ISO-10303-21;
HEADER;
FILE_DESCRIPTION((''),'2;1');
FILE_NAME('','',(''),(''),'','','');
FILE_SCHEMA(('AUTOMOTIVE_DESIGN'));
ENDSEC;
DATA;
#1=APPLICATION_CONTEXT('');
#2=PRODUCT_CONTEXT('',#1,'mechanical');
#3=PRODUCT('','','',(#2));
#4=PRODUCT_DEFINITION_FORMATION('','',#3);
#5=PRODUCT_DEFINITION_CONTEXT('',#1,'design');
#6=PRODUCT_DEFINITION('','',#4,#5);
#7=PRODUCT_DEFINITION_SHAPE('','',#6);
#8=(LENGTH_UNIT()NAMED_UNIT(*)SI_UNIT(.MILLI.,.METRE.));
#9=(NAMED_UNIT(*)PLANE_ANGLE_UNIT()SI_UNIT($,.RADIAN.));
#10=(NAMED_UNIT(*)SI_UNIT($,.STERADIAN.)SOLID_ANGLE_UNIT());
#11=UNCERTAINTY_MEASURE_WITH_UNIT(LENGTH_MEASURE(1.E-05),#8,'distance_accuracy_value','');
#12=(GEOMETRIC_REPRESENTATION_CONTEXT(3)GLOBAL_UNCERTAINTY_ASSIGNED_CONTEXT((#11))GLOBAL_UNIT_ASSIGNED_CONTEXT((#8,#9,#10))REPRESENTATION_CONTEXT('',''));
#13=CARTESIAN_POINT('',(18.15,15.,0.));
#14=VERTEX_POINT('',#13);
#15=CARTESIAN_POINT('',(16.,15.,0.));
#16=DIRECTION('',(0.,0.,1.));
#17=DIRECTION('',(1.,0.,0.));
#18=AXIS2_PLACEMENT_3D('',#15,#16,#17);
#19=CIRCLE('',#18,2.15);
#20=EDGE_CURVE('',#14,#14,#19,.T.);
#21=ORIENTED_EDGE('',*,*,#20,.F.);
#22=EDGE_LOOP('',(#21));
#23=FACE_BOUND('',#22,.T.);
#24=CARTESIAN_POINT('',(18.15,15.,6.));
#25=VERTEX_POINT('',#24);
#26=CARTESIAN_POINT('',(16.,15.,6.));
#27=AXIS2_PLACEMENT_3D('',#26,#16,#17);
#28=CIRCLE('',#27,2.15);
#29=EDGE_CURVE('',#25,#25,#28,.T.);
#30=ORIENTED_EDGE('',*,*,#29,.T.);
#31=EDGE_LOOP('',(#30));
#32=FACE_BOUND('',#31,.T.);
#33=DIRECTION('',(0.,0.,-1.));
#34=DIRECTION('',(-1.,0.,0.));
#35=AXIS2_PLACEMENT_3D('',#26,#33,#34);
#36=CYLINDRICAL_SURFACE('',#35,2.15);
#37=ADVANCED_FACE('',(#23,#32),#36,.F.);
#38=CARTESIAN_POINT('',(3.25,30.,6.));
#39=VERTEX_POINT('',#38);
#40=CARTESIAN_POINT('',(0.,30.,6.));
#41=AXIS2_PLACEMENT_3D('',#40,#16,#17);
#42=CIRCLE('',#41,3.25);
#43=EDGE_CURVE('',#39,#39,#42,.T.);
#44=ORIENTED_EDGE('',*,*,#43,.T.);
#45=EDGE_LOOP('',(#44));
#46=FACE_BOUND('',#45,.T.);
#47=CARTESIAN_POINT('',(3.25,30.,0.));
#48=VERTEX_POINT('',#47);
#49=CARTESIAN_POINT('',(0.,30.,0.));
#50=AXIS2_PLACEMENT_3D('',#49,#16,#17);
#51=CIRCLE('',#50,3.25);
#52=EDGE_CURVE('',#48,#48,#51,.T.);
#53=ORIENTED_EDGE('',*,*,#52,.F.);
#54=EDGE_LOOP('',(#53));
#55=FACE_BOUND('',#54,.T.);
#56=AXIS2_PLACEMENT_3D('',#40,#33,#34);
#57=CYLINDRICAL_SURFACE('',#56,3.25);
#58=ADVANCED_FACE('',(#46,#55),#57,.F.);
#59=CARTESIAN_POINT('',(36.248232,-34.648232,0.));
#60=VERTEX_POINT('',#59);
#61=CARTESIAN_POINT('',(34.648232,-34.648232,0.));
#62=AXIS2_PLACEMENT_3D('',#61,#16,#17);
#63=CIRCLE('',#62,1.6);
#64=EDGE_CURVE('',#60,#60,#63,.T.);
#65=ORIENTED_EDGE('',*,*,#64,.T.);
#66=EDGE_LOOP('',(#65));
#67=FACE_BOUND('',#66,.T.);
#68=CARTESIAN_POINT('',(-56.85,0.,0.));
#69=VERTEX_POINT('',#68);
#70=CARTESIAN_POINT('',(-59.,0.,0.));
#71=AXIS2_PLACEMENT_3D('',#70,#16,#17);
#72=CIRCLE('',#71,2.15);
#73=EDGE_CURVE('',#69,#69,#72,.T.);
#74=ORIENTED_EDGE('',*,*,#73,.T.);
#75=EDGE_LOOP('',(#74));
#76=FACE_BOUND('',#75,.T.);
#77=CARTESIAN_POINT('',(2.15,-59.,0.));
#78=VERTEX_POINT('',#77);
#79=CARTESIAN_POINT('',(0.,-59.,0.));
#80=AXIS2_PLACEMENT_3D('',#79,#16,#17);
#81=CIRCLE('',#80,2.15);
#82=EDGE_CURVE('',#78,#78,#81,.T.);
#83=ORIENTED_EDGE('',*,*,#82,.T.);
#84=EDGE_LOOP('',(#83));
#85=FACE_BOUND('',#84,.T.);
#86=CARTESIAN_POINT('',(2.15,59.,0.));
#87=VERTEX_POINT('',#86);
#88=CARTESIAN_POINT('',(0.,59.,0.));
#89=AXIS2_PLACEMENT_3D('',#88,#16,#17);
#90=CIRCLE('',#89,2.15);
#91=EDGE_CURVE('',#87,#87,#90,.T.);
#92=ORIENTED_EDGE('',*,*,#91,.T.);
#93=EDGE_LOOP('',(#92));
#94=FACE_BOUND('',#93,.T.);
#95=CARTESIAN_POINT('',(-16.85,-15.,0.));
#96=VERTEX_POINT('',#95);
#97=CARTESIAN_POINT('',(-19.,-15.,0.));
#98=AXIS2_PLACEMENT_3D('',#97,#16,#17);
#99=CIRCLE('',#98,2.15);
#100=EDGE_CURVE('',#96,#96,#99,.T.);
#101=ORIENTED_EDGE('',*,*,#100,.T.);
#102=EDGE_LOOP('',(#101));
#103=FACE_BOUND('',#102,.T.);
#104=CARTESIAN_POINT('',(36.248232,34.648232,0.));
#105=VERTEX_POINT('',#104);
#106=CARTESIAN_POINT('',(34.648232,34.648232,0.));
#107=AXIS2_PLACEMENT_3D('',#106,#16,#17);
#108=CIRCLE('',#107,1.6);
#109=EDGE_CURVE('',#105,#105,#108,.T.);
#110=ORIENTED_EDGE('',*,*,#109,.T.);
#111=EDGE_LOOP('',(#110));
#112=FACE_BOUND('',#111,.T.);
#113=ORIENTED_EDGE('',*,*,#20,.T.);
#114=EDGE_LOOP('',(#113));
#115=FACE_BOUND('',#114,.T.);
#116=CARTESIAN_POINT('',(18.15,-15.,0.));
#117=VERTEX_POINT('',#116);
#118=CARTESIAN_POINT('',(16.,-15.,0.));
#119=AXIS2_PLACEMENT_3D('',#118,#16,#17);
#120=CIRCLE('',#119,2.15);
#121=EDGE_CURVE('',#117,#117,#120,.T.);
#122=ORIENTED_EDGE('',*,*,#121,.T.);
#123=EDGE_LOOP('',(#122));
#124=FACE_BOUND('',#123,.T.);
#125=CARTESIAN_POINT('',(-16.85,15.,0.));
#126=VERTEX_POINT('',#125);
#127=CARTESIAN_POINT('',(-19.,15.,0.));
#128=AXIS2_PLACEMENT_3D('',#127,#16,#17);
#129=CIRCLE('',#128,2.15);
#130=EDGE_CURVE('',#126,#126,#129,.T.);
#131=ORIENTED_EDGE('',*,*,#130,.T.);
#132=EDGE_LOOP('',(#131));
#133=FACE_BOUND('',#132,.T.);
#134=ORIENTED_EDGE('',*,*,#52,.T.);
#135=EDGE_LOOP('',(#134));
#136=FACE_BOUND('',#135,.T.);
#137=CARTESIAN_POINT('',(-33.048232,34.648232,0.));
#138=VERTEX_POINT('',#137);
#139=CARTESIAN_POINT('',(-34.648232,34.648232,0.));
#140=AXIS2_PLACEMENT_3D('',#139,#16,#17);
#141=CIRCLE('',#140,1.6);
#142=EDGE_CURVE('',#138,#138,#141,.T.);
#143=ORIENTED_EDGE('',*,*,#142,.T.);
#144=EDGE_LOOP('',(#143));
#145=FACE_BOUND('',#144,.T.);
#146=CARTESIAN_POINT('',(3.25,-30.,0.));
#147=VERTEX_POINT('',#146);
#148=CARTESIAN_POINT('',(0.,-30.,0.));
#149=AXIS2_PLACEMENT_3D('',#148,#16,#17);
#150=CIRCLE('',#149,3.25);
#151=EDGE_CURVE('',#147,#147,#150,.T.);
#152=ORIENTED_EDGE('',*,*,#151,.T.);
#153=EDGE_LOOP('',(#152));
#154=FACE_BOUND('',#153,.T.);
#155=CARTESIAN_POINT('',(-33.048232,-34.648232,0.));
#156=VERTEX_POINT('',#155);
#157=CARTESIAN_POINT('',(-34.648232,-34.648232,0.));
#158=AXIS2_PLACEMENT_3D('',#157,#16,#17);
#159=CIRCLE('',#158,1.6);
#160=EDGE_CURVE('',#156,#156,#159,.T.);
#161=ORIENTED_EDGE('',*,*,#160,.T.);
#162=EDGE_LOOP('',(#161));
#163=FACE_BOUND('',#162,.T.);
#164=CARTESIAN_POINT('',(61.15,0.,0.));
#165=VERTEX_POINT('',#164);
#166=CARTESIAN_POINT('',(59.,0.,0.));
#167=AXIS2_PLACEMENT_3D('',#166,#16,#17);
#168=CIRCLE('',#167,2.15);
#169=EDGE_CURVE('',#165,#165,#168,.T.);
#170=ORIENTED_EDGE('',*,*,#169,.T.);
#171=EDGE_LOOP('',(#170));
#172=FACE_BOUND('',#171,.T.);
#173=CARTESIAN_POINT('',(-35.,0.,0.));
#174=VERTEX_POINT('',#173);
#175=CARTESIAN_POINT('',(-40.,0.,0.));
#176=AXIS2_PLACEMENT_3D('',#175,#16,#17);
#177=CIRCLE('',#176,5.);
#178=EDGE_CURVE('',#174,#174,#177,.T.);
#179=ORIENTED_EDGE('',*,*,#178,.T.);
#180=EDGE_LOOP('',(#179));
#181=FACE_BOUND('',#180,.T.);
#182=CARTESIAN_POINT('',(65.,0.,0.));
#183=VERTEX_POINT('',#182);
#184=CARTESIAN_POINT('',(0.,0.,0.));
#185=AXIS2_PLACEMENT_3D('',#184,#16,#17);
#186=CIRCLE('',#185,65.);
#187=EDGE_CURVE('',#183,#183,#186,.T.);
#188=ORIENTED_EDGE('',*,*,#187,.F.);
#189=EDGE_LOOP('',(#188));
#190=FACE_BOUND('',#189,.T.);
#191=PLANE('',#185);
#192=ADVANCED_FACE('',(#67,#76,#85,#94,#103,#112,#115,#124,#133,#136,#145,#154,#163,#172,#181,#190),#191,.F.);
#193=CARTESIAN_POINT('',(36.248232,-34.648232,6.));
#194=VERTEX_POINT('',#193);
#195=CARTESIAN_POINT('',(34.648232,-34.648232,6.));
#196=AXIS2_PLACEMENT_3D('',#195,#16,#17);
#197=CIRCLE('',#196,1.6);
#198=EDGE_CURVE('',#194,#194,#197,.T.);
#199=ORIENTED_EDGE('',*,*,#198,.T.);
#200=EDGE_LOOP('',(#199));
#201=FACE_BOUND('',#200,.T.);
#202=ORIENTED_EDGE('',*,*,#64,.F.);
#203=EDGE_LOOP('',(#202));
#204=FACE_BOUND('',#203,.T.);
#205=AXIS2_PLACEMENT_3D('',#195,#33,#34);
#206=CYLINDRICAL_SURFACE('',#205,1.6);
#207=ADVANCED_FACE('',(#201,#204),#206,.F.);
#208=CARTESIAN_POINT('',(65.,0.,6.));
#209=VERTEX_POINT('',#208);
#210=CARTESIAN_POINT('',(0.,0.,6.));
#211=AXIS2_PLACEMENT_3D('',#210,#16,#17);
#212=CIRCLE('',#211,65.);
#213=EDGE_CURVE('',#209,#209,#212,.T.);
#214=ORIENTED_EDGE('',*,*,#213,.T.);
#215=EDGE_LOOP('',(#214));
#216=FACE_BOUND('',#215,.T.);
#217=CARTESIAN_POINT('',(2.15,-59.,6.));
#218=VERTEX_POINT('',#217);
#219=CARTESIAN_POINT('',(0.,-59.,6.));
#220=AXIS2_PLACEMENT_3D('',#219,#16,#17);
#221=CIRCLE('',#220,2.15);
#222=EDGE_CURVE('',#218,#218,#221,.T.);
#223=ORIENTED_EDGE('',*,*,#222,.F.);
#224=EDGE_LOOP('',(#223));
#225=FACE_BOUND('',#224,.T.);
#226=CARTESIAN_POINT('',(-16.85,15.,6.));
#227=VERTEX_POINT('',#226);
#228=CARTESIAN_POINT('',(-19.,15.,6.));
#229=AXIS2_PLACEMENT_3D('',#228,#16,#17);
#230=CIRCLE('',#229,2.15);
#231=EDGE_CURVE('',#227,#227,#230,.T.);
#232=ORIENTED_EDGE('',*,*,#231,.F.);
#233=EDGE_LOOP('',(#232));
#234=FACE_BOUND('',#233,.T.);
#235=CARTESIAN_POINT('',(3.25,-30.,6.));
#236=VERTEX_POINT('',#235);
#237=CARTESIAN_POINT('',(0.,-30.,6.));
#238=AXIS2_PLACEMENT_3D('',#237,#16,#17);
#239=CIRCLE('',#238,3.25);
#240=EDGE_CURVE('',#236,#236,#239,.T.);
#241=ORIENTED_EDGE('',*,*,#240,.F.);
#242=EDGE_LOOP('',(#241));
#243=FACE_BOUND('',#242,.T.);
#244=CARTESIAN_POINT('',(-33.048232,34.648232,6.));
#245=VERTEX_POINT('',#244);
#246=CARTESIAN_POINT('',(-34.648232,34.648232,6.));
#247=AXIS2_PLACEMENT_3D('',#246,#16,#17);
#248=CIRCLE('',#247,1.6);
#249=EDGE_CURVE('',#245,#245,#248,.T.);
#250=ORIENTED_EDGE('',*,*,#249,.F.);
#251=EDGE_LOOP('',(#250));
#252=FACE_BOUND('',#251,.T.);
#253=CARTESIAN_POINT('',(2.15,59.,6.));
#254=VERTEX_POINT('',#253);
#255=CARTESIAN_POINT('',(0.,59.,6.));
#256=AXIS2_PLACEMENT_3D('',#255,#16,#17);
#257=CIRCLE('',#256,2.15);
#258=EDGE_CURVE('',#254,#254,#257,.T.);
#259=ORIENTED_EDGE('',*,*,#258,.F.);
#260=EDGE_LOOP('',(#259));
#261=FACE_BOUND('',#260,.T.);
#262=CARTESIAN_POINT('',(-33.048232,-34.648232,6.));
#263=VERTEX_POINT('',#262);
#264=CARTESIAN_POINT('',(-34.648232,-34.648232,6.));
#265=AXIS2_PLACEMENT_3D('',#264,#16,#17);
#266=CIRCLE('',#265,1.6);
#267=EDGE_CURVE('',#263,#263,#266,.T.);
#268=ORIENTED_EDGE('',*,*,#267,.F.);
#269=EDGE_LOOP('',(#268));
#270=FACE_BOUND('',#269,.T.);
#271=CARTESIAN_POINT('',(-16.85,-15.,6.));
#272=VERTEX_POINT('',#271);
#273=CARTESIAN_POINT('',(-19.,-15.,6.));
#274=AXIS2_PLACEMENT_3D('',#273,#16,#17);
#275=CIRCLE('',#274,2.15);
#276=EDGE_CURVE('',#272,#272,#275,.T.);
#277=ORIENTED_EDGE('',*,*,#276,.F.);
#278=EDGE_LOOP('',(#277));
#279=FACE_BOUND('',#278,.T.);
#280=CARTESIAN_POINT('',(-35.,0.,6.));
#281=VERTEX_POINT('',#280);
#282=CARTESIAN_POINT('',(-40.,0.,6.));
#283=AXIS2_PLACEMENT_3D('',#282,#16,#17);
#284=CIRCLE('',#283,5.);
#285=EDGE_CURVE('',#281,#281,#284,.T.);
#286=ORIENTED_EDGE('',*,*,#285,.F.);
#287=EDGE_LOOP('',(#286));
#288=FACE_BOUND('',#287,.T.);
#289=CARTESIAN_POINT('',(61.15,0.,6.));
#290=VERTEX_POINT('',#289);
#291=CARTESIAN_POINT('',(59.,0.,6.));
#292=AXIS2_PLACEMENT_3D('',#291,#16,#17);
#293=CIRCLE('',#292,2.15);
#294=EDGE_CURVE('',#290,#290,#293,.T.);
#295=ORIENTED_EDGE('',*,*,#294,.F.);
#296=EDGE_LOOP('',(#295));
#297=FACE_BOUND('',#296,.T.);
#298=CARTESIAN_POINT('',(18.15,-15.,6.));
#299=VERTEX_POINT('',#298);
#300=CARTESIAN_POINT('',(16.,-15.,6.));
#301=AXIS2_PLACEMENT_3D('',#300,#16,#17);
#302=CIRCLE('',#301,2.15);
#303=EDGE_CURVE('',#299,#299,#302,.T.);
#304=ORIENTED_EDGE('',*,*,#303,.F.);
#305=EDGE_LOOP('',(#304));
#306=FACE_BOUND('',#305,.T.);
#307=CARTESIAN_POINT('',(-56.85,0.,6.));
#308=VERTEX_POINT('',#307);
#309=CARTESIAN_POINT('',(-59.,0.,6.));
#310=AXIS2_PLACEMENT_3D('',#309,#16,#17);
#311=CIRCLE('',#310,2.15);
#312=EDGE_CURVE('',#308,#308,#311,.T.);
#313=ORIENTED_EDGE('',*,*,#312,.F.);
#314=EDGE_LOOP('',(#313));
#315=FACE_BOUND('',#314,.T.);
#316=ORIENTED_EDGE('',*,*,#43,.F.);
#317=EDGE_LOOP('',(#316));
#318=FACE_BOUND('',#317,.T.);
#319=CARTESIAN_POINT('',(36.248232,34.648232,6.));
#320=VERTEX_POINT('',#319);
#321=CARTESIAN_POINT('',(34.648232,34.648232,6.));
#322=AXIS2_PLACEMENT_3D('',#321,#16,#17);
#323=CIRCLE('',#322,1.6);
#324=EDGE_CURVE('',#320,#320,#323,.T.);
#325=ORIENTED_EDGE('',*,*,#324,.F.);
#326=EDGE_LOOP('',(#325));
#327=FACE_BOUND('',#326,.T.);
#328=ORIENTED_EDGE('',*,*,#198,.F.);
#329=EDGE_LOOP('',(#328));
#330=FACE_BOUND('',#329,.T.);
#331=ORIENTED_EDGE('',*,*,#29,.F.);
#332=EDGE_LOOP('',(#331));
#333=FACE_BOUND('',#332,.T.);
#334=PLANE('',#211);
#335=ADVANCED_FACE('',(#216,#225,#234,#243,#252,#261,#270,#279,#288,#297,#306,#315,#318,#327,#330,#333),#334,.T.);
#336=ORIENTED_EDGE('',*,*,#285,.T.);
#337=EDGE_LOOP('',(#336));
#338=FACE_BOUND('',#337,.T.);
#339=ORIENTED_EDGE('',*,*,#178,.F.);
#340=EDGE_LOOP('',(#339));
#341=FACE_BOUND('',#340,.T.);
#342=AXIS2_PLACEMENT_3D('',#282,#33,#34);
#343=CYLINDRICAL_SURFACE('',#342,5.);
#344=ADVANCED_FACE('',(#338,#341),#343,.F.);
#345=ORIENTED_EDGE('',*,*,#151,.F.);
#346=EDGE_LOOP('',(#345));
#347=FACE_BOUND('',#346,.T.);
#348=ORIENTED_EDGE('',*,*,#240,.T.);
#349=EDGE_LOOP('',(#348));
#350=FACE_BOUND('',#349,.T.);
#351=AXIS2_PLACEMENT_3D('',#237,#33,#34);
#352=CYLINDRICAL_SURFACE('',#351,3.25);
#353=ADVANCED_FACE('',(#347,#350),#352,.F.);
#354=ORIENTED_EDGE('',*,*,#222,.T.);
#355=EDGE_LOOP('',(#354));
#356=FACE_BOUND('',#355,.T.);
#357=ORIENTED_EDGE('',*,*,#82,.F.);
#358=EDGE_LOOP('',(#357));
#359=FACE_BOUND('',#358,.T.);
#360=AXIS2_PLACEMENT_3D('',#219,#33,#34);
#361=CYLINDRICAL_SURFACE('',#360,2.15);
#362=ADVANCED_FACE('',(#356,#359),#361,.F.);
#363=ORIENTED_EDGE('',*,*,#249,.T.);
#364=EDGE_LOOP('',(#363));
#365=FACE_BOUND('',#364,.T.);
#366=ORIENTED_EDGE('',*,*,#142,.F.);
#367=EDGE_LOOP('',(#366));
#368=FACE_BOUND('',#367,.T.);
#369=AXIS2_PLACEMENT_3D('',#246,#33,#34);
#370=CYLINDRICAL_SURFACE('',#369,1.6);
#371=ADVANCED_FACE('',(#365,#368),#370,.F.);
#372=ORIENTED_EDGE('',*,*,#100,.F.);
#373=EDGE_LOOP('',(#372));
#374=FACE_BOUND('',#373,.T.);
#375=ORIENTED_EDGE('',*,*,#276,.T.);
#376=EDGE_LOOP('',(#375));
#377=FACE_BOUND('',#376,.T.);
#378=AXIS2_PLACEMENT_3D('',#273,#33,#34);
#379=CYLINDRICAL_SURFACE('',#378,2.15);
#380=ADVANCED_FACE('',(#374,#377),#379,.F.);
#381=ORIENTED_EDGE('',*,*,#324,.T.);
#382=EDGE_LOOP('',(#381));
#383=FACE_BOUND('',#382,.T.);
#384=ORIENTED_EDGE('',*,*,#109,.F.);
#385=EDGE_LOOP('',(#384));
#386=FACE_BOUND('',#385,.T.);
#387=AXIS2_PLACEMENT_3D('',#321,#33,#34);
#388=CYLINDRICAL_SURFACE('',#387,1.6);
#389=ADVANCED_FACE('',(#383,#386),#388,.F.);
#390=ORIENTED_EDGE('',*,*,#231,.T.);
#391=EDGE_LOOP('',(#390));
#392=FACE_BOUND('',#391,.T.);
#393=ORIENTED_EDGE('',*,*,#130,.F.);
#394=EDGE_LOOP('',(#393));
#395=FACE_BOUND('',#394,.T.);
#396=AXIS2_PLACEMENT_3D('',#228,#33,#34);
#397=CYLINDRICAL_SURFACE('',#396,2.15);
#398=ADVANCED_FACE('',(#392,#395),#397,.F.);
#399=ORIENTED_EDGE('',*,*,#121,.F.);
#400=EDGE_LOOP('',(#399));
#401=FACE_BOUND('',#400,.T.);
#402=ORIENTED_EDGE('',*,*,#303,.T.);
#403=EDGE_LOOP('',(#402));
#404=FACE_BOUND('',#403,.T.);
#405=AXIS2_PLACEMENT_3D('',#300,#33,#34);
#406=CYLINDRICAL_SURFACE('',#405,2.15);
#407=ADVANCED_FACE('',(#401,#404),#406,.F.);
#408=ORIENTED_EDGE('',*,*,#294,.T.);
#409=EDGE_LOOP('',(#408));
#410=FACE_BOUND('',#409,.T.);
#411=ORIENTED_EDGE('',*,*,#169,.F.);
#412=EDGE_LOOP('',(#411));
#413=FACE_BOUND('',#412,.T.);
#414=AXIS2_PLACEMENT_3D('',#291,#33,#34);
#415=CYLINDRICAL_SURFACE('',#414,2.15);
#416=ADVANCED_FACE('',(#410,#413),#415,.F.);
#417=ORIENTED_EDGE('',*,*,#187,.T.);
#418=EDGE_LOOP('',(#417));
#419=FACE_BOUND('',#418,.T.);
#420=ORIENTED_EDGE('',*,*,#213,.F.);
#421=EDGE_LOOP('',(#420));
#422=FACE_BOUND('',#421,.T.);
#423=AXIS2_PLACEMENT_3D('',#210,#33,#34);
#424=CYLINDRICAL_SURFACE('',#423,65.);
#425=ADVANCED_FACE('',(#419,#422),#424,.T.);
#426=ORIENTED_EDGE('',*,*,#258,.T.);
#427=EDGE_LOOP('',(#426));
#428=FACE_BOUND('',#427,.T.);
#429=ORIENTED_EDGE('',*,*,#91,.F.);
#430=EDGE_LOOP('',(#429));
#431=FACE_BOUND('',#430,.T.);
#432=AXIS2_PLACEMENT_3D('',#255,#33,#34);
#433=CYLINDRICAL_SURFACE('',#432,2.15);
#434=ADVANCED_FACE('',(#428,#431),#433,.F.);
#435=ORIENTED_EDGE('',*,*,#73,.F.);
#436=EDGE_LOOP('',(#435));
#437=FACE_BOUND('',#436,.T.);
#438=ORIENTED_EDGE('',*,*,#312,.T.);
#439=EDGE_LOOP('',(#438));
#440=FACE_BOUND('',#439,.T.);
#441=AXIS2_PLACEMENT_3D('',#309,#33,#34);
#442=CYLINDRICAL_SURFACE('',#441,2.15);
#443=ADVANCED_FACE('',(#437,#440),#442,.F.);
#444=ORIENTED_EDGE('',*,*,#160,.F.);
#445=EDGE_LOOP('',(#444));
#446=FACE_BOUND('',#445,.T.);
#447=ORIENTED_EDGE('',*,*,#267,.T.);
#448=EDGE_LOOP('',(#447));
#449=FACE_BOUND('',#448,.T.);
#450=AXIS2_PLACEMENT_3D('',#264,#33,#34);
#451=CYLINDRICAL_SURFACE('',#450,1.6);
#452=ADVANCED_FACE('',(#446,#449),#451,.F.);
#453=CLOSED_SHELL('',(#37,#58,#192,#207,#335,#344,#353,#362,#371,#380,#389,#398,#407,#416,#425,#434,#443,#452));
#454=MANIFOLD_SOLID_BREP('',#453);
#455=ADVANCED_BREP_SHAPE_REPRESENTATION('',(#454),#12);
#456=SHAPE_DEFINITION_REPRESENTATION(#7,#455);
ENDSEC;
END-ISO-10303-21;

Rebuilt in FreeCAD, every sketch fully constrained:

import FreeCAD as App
import Part
import Sketcher
from FreeCAD import Vector

doc = App.newDocument("Part")
body = doc.addObject("PartDesign::Body", "Body")

# Sketch on XY plane
sketch1 = body.newObject("Sketcher::SketchObject", "Sketch")
sketch1.AttachmentSupport = (doc.getObject("XY_Plane"), [""])
sketch1.MapMode = "FlatFace"
sketch1.addGeometry(Part.Circle(Vector(0, 0, 0), Vector(0, 0, 1), 65), False)
sketch1.addGeometry(Part.Circle(Vector(-34.6, -34.6, 0), Vector(0, 0, 1), 1.6), False)
sketch1.addGeometry(Part.Circle(Vector(0, -59, 0), Vector(0, 0, 1), 2.1), False)
sketch1.addGeometry(Part.Circle(Vector(-59, 0, 0), Vector(0, 0, 1), 2.1), False)
sketch1.addGeometry(Part.Circle(Vector(-40, 0, 0), Vector(0, 0, 1), 5), False)
sketch1.addGeometry(Part.Circle(Vector(0, -30, 0), Vector(0, 0, 1), 3.2), False)
sketch1.addGeometry(Part.Circle(Vector(-19, -15, 0), Vector(0, 0, 1), 2.1), False)
sketch1.addGeometry(Part.Circle(Vector(34.6, -34.6, 0), Vector(0, 0, 1), 1.6), False)
sketch1.addGeometry(Part.Circle(Vector(16, -15, 0), Vector(0, 0, 1), 2.1), False)
sketch1.addGeometry(Part.Circle(Vector(59, 0, 0), Vector(0, 0, 1), 2.1), False)
sketch1.addGeometry(Part.Circle(Vector(-19, 15, 0), Vector(0, 0, 1), 2.1), False)
sketch1.addGeometry(Part.Circle(Vector(0, 30, 0), Vector(0, 0, 1), 3.2), False)
sketch1.addGeometry(Part.Circle(Vector(-34.6, 34.6, 0), Vector(0, 0, 1), 1.6), False)
sketch1.addGeometry(Part.Circle(Vector(0, 59, 0), Vector(0, 0, 1), 2.1), False)
sketch1.addGeometry(Part.Circle(Vector(16, 15, 0), Vector(0, 0, 1), 2.1), False)
sketch1.addGeometry(Part.Circle(Vector(34.6, 34.6, 0), Vector(0, 0, 1), 1.6), False)
sketch1.addConstraint(Sketcher.Constraint("Coincident", 0, 3, -1, 1))
sketch1.addConstraint(Sketcher.Constraint("Equal", 2, 3))
sketch1.addConstraint(Sketcher.Constraint("Equal", 3, 6))
sketch1.addConstraint(Sketcher.Constraint("Equal", 1, 7))
sketch1.addConstraint(Sketcher.Constraint("Equal", 6, 8))
sketch1.addConstraint(Sketcher.Constraint("Equal", 8, 9))
sketch1.addConstraint(Sketcher.Constraint("Equal", 9, 10))
sketch1.addConstraint(Sketcher.Constraint("Equal", 5, 11))
sketch1.addConstraint(Sketcher.Constraint("Equal", 7, 12))
sketch1.addConstraint(Sketcher.Constraint("Equal", 10, 13))
sketch1.addConstraint(Sketcher.Constraint("Equal", 13, 14))
sketch1.addConstraint(Sketcher.Constraint("Equal", 12, 15))
sketch1.addConstraint(Sketcher.Constraint("Symmetric", 3, 3, 9, 3, -1, 1))
sketch1.addConstraint(Sketcher.Constraint("Symmetric", 5, 3, 11, 3, -1, 1))
sketch1.addConstraint(Sketcher.Constraint("Symmetric", 7, 3, 12, 3, -1, 1))
sketch1.addConstraint(Sketcher.Constraint("Symmetric", 2, 3, 13, 3, -1, 1))
sketch1.addConstraint(Sketcher.Constraint("Symmetric", 1, 3, 15, 3, -1, 1))
sketch1.addConstraint(Sketcher.Constraint("Symmetric", 1, 3, 7, 3, -2))
sketch1.addConstraint(Sketcher.Constraint("Symmetric", 6, 3, 10, 3, -1))
sketch1.addConstraint(Sketcher.Constraint("Symmetric", 8, 3, 14, 3, -1))
sketch1.addConstraint(Sketcher.Constraint("PointOnObject", 2, 3, -2))
sketch1.addConstraint(Sketcher.Constraint("PointOnObject", 3, 3, -1))
sketch1.addConstraint(Sketcher.Constraint("PointOnObject", 4, 3, -1))
sketch1.addConstraint(Sketcher.Constraint("PointOnObject", 5, 3, -2))
sketch1.addConstraint(Sketcher.Constraint("Horizontal", 6, 3, 8, 3))
sketch1.addConstraint(Sketcher.Constraint("Diameter", 0, 130.0))
sketch1.addConstraint(Sketcher.Constraint("Diameter", 4, 10.0))
sketch1.addConstraint(Sketcher.Constraint("Diameter", 1, 3.2))
sketch1.addConstraint(Sketcher.Constraint("Diameter", 2, 4.3))
sketch1.addConstraint(Sketcher.Constraint("Diameter", 5, 6.5))
sketch1.addConstraint(Sketcher.Constraint("DistanceY", 2, 3, -1, 1, 59.0))
sketch1.addConstraint(Sketcher.Constraint("DistanceX", 3, 3, -1, 1, 59.0))
sketch1.addConstraint(Sketcher.Constraint("DistanceX", 4, 3, -1, 1, 40.0))
sketch1.addConstraint(Sketcher.Constraint("DistanceY", 5, 3, -1, 1, 30.0))
sketch1.addConstraint(Sketcher.Constraint("DistanceX", 6, 3, -1, 1, 19.0))
sketch1.addConstraint(Sketcher.Constraint("DistanceY", 6, 3, -1, 1, 15.0))
sketch1.addConstraint(Sketcher.Constraint("DistanceX", -1, 1, 8, 3, 16.0))
sketch1.addConstraint(Sketcher.Constraint("DistanceX", 1, 3, -1, 1, 34.648232))
sketch1.addConstraint(Sketcher.Constraint("DistanceY", 1, 3, -1, 1, 34.648232))
pad1 = body.newObject("PartDesign::Pad", "Pad")
pad1.Profile = sketch1
pad1.Length = 6

doc.recompute()
